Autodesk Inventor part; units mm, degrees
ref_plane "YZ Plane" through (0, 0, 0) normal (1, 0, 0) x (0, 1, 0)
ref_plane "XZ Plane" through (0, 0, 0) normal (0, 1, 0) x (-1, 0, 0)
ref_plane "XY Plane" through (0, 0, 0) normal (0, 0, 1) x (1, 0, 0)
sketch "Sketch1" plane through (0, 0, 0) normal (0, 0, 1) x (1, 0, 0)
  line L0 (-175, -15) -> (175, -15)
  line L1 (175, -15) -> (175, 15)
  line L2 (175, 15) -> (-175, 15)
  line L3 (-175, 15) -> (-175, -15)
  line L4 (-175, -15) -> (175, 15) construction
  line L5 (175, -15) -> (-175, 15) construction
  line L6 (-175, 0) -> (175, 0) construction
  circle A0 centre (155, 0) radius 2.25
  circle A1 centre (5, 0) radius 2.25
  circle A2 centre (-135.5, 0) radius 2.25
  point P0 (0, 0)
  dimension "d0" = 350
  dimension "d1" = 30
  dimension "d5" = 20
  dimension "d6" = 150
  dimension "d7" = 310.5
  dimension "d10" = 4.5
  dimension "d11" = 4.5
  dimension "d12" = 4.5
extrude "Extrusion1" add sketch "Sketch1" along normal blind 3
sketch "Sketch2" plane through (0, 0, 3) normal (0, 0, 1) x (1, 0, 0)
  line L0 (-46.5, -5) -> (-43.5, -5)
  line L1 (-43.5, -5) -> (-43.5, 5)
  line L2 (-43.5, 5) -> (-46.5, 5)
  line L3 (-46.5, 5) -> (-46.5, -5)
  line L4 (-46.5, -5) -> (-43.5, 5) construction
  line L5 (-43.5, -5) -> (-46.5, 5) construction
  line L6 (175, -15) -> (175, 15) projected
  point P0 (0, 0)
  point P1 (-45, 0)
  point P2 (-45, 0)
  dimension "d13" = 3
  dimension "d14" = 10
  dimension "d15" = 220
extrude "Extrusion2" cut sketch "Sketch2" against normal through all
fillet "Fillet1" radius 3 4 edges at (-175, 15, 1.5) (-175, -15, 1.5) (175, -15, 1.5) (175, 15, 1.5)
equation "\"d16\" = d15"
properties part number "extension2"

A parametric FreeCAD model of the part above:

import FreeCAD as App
import Part
import Sketcher
from FreeCAD import Vector
Q = App.Units.Quantity


def edges_at(feature, points):
    """Names of the edges that pass closest to the given points."""
    edges = feature.Shape.Edges
    near = lambda p: min(range(len(edges)), key=lambda i: edges[i].distToShape(Part.Vertex(*p))[0])
    return sorted({f"Edge{near(p) + 1}" for p in points})

doc = App.newDocument("Part")
body = doc.addObject("PartDesign::Body", "Body")

# Sketch on XY plane
sketch1 = body.newObject("Sketcher::SketchObject", "Sketch")
sketch1.AttachmentSupport = (doc.getObject("XY_Plane"), [""])
sketch1.MapMode = "FlatFace"
sketch1.addGeometry([
    Part.LineSegment(Vector(-175, 15, 0), Vector(-175, -15, 0)),  # 0
    Part.LineSegment(Vector(-175, -15, 0), Vector(175, -15, 0)),  # 1
    Part.LineSegment(Vector(175, -15, 0), Vector(175, 15, 0)),  # 2
    Part.LineSegment(Vector(175, 15, 0), Vector(-175, 15, 0)),  # 3
    Part.Circle(Vector(-135.5, 0, 0), Vector(0, 0, 1), 2.25),  # 4
    Part.Circle(Vector(5, 0, 0), Vector(0, 0, 1), 2.25),  # 5
    Part.Circle(Vector(155, 0, 0), Vector(0, 0, 1), 2.25),  # 6
], False)
sketch1.addConstraint([
    Sketcher.Constraint("Coincident", 0, 2, 1, 1),
    Sketcher.Constraint("Coincident", 1, 2, 2, 1),
    Sketcher.Constraint("Coincident", 2, 2, 3, 1),
    Sketcher.Constraint("Coincident", 3, 2, 0, 1),
    Sketcher.Constraint("Vertical", 0),
    Sketcher.Constraint("Horizontal", 1),
    Sketcher.Constraint("Vertical", 2),
    Sketcher.Constraint("Horizontal", 3),
    Sketcher.Constraint("Equal", 4, 5),
    Sketcher.Constraint("Equal", 5, 6),
    Sketcher.Constraint("Symmetric", 0, 2, 2, 2, -1, 1),
    Sketcher.Constraint("PointOnObject", 4, 3, -1),
    Sketcher.Constraint("PointOnObject", 5, 3, -1),
    Sketcher.Constraint("PointOnObject", 6, 3, -1),
    Sketcher.Constraint("Diameter", 4, Q("4.5 mm")),
    Sketcher.Constraint("DistanceX", 1, 1, 1, 2, Q("350 mm")),
    Sketcher.Constraint("DistanceY", 0, 2, 0, 1, Q("30 mm")),
    Sketcher.Constraint("DistanceX", 5, 3, 6, 3, Q("150 mm")),
    Sketcher.Constraint("DistanceX", 6, 3, 1, 2, Q("20 mm")),
    Sketcher.Constraint("DistanceX", 4, 3, 1, 2, Q("310.5 mm")),
])
pad1 = body.newObject("PartDesign::Pad", "Pad")
pad1.Profile = sketch1
pad1.Length = 3

# Sketch on XY plane
sketch2 = body.newObject("Sketcher::SketchObject", "Sketch001")
sketch2.AttachmentSupport = (doc.getObject("XY_Plane"), [""])
sketch2.MapMode = "FlatFace"
sketch2.AttachmentOffset = App.Placement(Vector(0, 0, 3), App.Rotation())
sketch2.addGeometry([
    Part.LineSegment(Vector(-46.5, 5, 0), Vector(-46.5, -5, 0)),
    Part.LineSegment(Vector(-46.5, -5, 0), Vector(-43.5, -5, 0)),
    Part.LineSegment(Vector(-43.5, -5, 0), Vector(-43.5, 5, 0)),
    Part.LineSegment(Vector(-43.5, 5, 0), Vector(-46.5, 5, 0)),
], False)
sketch2.addConstraint([
    Sketcher.Constraint("Coincident", 0, 2, 1, 1),
    Sketcher.Constraint("Coincident", 1, 2, 2, 1),
    Sketcher.Constraint("Coincident", 2, 2, 3, 1),
    Sketcher.Constraint("Coincident", 3, 2, 0, 1),
    Sketcher.Constraint("Vertical", 0),
    Sketcher.Constraint("Horizontal", 1),
    Sketcher.Constraint("Vertical", 2),
    Sketcher.Constraint("Horizontal", 3),
    Sketcher.Constraint("DistanceX", 1, 1, 1, 2, Q("3 mm")),
    Sketcher.Constraint("DistanceY", 0, 2, 0, 1, Q("10 mm")),
    Sketcher.Constraint("DistanceY", 0, 2, -1, 1, Q("5 mm")),
    Sketcher.Constraint("DistanceX", 0, 2, -1, 1, Q("46.5 mm")),
])
pocket1 = body.newObject("PartDesign::Pocket", "Pocket")
pocket1.Profile = sketch2
pocket1.Type = "ThroughAll"
doc.recompute()

fillet = body.newObject("PartDesign::Fillet", "Fillet")
fillet.Base = (pocket1, edges_at(pocket1, [
    (-175, 15, 1.5),
    (-175, -15, 1.5),
    (175, -15, 1.5),
    (175, 15, 1.5),
]))
fillet.Radius = 3

doc.recompute()
